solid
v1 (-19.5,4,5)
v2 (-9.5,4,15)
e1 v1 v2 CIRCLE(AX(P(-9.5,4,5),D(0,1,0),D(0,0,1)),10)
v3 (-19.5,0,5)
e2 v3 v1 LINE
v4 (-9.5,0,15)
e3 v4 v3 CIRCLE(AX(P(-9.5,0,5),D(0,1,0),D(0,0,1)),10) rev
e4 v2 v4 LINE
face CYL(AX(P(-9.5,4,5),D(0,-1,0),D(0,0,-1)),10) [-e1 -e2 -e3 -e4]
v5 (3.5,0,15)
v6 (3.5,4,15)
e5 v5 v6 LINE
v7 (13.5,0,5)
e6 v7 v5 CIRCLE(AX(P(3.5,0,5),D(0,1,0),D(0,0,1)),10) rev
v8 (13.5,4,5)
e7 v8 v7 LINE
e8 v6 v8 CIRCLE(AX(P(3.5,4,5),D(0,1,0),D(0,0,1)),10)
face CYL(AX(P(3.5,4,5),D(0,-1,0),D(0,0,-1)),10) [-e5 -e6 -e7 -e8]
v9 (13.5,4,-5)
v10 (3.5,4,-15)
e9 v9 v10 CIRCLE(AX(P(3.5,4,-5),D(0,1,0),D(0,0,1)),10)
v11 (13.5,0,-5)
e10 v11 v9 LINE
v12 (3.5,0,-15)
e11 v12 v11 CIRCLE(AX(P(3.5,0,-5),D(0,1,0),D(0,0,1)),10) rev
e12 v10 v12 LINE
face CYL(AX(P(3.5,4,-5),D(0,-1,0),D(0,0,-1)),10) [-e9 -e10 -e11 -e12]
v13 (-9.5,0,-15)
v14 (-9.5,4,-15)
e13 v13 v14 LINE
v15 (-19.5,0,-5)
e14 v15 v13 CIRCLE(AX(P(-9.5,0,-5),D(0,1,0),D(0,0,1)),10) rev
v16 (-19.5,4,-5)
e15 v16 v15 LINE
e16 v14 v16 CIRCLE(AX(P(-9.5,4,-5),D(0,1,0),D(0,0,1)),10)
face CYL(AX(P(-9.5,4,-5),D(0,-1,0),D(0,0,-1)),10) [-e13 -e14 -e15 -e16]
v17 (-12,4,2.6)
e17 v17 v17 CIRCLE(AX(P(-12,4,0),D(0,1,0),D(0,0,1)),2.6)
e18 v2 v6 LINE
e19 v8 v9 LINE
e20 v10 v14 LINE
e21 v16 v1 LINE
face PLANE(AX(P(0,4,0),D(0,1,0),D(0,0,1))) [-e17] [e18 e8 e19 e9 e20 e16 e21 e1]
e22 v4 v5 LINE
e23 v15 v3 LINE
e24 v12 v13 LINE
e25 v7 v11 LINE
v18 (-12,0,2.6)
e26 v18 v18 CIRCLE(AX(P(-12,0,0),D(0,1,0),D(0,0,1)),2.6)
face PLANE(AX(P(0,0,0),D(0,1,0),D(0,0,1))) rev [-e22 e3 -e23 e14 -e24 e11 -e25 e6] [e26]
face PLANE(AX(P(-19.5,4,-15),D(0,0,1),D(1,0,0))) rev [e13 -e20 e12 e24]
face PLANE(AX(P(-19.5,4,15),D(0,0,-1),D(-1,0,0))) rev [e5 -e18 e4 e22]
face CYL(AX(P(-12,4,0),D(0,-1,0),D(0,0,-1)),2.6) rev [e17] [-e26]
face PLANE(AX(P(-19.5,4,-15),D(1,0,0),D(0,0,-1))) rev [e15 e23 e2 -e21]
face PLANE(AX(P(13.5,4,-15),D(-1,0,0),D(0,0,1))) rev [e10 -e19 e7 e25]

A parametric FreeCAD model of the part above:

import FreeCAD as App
import Part
import Sketcher

V = App.Vector
Q = App.Units.Quantity


def edges_at(feature, points):
    """Names of the edges that pass closest to the given points."""
    edges = feature.Shape.Edges
    near = lambda p: min(range(len(edges)), key=lambda i: edges[i].distToShape(Part.Vertex(*p))[0])
    return sorted({f"Edge{near(p) + 1}" for p in points})


def add_polygon(sketch, points):
    """Adds a closed chain of lines whose ends are joined by coincident constraints."""
    first, n = sketch.GeometryCount, len(points)
    for a, b in zip(points, points[1:] + points[:1]):
        sketch.addGeometry(Part.LineSegment(App.Vector(*a, 0), App.Vector(*b, 0)), False)
    for i in range(n):
        sketch.addConstraint(Sketcher.Constraint("Coincident", first + i, 2, first + (i + 1) % n, 1))

doc = App.newDocument("Part")
body = doc.addObject("PartDesign::Body", "Body")

# Sketch on XZ plane
sketch1 = doc.addObject("Sketcher::SketchObject", "Sketch")
body.addObject(sketch1)
sketch1.AttachmentSupport = (doc.XZ_Plane, [""])
sketch1.MapMode = "FlatFace"
add_polygon(sketch1, [(-19.5, -15), (-19.5, 15), (13.5, 15), (13.5, -15)])  # lines 0-3
sketch1.addGeometry(Part.Circle(V(-12, 0, 0), V(0, 0, 1), 2.6), False)  # 4
sketch1.addConstraint(Sketcher.Constraint("Vertical", 0))
sketch1.addConstraint(Sketcher.Constraint("Horizontal", 1))
sketch1.addConstraint(Sketcher.Constraint("Vertical", 2))
sketch1.addConstraint(Sketcher.Constraint("Horizontal", 3))
sketch1.addConstraint(Sketcher.Constraint("PointOnObject", 4, 3, -1))
sketch1.addConstraint(Sketcher.Constraint("Diameter", 4, Q("5.2 mm")))
sketch1.addConstraint(Sketcher.Constraint("DistanceX", 1, 1, 1, 2, Q("33 mm")))
sketch1.addConstraint(Sketcher.Constraint("DistanceY", 0, 1, 0, 2, Q("30 mm")))
sketch1.addConstraint(Sketcher.Constraint("DistanceX", 4, 3, -1, 1, Q("12 mm")))
sketch1.addConstraint(Sketcher.Constraint("DistanceY", -1, 1, 0, 2, Q("15 mm")))
sketch1.addConstraint(Sketcher.Constraint("DistanceX", 0, 2, -1, 1, Q("19.5 mm")))
pad1 = doc.addObject("PartDesign::Pad", "Pad")
body.addObject(pad1)
pad1.Profile = sketch1
pad1.Length = 4
pad1.Reversed = True
doc.recompute()

fillet = doc.addObject("PartDesign::Fillet", "Fillet")
body.addObject(fillet)
fillet.Base = (pad1, edges_at(pad1, [
    (13.5, 2, 15),
    (-19.5, 2, 15),
    (-19.5, 2, -15),
    (13.5, 2, -15),
]))
fillet.Radius = 10

doc.recompute()
